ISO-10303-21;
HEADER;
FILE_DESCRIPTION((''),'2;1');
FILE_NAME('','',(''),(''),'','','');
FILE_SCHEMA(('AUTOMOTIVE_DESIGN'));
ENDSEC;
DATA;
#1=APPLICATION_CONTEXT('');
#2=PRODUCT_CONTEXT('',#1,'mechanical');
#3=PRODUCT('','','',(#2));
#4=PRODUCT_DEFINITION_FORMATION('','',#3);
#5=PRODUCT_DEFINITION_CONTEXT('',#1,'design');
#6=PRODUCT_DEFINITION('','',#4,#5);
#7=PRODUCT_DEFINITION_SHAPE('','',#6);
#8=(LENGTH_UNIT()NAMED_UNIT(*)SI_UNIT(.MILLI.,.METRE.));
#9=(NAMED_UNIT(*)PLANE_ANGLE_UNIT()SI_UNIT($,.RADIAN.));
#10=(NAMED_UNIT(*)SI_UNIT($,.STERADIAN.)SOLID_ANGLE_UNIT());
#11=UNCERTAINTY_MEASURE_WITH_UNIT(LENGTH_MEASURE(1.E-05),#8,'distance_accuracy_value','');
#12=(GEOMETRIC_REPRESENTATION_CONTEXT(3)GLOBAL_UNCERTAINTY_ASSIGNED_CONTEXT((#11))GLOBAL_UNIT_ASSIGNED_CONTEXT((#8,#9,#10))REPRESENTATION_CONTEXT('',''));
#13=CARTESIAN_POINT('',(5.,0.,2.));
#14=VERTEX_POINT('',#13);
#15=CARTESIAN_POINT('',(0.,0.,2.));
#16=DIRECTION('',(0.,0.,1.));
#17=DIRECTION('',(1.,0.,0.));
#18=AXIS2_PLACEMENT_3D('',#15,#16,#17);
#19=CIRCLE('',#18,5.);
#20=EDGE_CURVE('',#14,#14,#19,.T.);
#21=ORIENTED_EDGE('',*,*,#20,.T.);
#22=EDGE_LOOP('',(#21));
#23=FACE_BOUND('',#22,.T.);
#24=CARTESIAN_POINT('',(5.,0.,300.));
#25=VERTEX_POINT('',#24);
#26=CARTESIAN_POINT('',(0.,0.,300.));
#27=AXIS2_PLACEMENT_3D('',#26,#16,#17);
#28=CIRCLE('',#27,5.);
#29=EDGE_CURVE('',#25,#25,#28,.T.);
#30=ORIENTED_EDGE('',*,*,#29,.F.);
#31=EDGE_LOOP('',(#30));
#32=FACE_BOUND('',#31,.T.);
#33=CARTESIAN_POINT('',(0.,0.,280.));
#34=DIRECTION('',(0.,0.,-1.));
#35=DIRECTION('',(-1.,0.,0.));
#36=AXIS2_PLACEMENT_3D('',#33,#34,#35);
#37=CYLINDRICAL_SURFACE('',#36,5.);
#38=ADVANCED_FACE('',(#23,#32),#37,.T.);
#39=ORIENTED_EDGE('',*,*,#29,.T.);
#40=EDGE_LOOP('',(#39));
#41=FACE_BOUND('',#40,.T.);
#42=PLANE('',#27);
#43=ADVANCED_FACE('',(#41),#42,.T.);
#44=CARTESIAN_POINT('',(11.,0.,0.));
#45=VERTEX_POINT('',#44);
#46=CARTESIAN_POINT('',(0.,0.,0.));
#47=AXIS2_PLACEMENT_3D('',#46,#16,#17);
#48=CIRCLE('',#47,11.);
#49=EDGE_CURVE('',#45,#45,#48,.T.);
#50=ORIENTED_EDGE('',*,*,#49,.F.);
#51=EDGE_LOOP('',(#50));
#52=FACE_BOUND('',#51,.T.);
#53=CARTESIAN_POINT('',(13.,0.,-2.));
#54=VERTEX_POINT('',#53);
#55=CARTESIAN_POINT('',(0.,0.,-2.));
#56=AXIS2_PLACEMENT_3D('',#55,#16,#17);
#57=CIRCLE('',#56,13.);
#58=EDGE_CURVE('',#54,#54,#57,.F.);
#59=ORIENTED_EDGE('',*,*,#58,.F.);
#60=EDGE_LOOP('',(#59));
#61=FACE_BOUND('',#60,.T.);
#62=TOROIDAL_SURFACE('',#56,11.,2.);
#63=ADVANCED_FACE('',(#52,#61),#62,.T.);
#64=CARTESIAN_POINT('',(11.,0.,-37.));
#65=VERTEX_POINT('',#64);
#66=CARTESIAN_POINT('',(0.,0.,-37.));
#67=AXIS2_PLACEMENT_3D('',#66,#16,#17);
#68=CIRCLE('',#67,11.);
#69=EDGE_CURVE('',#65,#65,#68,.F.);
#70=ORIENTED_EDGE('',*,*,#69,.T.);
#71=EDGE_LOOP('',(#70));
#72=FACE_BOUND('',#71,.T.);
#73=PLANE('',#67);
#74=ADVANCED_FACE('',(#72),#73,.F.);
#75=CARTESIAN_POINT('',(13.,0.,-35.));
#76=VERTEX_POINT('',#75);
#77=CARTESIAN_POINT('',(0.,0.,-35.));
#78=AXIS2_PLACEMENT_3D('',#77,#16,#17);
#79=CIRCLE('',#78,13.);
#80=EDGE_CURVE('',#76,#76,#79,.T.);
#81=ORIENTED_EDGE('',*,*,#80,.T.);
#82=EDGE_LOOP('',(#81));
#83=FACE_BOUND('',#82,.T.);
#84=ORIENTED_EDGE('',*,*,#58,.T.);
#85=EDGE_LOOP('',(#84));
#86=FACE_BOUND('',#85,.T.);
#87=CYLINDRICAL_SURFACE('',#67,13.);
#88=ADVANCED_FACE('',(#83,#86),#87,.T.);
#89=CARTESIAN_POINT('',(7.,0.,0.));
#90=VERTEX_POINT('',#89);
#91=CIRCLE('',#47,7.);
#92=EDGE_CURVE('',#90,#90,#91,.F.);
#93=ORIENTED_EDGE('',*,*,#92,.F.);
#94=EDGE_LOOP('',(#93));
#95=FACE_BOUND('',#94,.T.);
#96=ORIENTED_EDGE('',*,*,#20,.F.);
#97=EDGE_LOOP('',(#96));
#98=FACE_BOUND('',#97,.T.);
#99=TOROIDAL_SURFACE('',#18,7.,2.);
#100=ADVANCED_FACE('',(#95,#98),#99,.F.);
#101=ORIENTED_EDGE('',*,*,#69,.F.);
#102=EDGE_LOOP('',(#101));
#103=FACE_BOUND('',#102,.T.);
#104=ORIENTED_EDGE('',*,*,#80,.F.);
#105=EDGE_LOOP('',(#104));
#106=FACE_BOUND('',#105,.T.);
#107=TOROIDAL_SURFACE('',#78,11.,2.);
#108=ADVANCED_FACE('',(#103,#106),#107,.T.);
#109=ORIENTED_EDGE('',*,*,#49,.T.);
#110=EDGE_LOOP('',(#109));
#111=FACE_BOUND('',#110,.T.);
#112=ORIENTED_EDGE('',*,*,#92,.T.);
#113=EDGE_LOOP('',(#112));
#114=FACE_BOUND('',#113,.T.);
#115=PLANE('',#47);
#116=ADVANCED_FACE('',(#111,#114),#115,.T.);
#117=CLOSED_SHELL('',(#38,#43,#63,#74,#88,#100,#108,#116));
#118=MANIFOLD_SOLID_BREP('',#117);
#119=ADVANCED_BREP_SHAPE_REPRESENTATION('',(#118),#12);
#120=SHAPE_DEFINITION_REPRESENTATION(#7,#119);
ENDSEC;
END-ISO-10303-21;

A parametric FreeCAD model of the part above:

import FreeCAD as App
import Part
import Sketcher
from FreeCAD import Vector
Q = App.Units.Quantity


def edges_at(feature, points):
    """Names of the edges that pass closest to the given points."""
    edges = feature.Shape.Edges
    near = lambda p: min(range(len(edges)), key=lambda i: edges[i].distToShape(Part.Vertex(*p))[0])
    return sorted({f"Edge{near(p) + 1}" for p in points})

doc = App.newDocument("Part")
params = doc.addObject("Spreadsheet::Sheet", "Params")
for row, (alias, value) in enumerate([
    ("sketch1_diameter", "26 mm"),
    ("pad1_length", "37 mm"),
    ("sketch2_diameter", "10 mm"),
    ("pad2_length", "280 mm"),
    ("sketch3_diameter", "10 mm"),
    ("pad3_length", "20 mm"),
    ("fillet_radius", "2 mm"),
], start=1):
    params.set(f"A{row}", alias)
    params.set(f"B{row}", "=" + value)
    params.setAlias(f"B{row}", alias)

body = doc.addObject("PartDesign::Body", "Body")

# Sketch on XY plane
sketch1 = doc.addObject("Sketcher::SketchObject", "Sketch")
body.addObject(sketch1)
sketch1.AttachmentSupport = (doc.XY_Plane, [""])
sketch1.MapMode = "FlatFace"
sketch1.addGeometry(Part.Circle(Vector(0, 0, 0), Vector(0, 0, 1), 13), False)
sketch1.addConstraint(Sketcher.Constraint("Coincident", 0, 3, -1, 1))
sketch1.addConstraint(Sketcher.Constraint("Diameter", 0, Q("26 mm")))
sketch1.setExpression("Constraints[1]", "Params.sketch1_diameter")
pad1 = doc.addObject("PartDesign::Pad", "Pad")
body.addObject(pad1)
pad1.Profile = sketch1
pad1.setExpression("Length", "Params.pad1_length")
pad1.Reversed = True

# Sketch on XY plane
sketch2 = doc.addObject("Sketcher::SketchObject", "Sketch001")
body.addObject(sketch2)
sketch2.AttachmentSupport = (doc.XY_Plane, [""])
sketch2.MapMode = "FlatFace"
sketch2.addGeometry(Part.Circle(Vector(0, 0, 0), Vector(0, 0, 1), 5), False)
sketch2.addConstraint(Sketcher.Constraint("Coincident", 0, 3, -1, 1))
sketch2.addConstraint(Sketcher.Constraint("Diameter", 0, Q("10 mm")))
sketch2.setExpression("Constraints[1]", "Params.sketch2_diameter")
pad2 = doc.addObject("PartDesign::Pad", "Pad001")
body.addObject(pad2)
pad2.Profile = sketch2
pad2.setExpression("Length", "Params.pad2_length")

# Sketch on XY plane
sketch3 = doc.addObject("Sketcher::SketchObject", "Sketch002")
body.addObject(sketch3)
sketch3.AttachmentSupport = (doc.XY_Plane, [""])
sketch3.MapMode = "FlatFace"
sketch3.AttachmentOffset = App.Placement(Vector(0, 0, 280), App.Rotation())
sketch3.addGeometry(Part.Circle(Vector(0, 0, 0), Vector(0, 0, 1), 5), False)
sketch3.addConstraint(Sketcher.Constraint("Coincident", 0, 3, -1, 1))
sketch3.addConstraint(Sketcher.Constraint("Diameter", 0, Q("10 mm")))
sketch3.setExpression("Constraints[1]", "Params.sketch3_diameter")
pad3 = doc.addObject("PartDesign::Pad", "Pad002")
body.addObject(pad3)
pad3.Profile = sketch3
pad3.setExpression("Length", "Params.pad3_length")
doc.recompute()

fillet = doc.addObject("PartDesign::Fillet", "Fillet")
body.addObject(fillet)
fillet.Base = (pad3, edges_at(pad3, [(-13, 0, 0), (-13, 0, -37), (-5, 0, 0)]))
fillet.setExpression("Radius", "Params.fillet_radius")

doc.recompute()
